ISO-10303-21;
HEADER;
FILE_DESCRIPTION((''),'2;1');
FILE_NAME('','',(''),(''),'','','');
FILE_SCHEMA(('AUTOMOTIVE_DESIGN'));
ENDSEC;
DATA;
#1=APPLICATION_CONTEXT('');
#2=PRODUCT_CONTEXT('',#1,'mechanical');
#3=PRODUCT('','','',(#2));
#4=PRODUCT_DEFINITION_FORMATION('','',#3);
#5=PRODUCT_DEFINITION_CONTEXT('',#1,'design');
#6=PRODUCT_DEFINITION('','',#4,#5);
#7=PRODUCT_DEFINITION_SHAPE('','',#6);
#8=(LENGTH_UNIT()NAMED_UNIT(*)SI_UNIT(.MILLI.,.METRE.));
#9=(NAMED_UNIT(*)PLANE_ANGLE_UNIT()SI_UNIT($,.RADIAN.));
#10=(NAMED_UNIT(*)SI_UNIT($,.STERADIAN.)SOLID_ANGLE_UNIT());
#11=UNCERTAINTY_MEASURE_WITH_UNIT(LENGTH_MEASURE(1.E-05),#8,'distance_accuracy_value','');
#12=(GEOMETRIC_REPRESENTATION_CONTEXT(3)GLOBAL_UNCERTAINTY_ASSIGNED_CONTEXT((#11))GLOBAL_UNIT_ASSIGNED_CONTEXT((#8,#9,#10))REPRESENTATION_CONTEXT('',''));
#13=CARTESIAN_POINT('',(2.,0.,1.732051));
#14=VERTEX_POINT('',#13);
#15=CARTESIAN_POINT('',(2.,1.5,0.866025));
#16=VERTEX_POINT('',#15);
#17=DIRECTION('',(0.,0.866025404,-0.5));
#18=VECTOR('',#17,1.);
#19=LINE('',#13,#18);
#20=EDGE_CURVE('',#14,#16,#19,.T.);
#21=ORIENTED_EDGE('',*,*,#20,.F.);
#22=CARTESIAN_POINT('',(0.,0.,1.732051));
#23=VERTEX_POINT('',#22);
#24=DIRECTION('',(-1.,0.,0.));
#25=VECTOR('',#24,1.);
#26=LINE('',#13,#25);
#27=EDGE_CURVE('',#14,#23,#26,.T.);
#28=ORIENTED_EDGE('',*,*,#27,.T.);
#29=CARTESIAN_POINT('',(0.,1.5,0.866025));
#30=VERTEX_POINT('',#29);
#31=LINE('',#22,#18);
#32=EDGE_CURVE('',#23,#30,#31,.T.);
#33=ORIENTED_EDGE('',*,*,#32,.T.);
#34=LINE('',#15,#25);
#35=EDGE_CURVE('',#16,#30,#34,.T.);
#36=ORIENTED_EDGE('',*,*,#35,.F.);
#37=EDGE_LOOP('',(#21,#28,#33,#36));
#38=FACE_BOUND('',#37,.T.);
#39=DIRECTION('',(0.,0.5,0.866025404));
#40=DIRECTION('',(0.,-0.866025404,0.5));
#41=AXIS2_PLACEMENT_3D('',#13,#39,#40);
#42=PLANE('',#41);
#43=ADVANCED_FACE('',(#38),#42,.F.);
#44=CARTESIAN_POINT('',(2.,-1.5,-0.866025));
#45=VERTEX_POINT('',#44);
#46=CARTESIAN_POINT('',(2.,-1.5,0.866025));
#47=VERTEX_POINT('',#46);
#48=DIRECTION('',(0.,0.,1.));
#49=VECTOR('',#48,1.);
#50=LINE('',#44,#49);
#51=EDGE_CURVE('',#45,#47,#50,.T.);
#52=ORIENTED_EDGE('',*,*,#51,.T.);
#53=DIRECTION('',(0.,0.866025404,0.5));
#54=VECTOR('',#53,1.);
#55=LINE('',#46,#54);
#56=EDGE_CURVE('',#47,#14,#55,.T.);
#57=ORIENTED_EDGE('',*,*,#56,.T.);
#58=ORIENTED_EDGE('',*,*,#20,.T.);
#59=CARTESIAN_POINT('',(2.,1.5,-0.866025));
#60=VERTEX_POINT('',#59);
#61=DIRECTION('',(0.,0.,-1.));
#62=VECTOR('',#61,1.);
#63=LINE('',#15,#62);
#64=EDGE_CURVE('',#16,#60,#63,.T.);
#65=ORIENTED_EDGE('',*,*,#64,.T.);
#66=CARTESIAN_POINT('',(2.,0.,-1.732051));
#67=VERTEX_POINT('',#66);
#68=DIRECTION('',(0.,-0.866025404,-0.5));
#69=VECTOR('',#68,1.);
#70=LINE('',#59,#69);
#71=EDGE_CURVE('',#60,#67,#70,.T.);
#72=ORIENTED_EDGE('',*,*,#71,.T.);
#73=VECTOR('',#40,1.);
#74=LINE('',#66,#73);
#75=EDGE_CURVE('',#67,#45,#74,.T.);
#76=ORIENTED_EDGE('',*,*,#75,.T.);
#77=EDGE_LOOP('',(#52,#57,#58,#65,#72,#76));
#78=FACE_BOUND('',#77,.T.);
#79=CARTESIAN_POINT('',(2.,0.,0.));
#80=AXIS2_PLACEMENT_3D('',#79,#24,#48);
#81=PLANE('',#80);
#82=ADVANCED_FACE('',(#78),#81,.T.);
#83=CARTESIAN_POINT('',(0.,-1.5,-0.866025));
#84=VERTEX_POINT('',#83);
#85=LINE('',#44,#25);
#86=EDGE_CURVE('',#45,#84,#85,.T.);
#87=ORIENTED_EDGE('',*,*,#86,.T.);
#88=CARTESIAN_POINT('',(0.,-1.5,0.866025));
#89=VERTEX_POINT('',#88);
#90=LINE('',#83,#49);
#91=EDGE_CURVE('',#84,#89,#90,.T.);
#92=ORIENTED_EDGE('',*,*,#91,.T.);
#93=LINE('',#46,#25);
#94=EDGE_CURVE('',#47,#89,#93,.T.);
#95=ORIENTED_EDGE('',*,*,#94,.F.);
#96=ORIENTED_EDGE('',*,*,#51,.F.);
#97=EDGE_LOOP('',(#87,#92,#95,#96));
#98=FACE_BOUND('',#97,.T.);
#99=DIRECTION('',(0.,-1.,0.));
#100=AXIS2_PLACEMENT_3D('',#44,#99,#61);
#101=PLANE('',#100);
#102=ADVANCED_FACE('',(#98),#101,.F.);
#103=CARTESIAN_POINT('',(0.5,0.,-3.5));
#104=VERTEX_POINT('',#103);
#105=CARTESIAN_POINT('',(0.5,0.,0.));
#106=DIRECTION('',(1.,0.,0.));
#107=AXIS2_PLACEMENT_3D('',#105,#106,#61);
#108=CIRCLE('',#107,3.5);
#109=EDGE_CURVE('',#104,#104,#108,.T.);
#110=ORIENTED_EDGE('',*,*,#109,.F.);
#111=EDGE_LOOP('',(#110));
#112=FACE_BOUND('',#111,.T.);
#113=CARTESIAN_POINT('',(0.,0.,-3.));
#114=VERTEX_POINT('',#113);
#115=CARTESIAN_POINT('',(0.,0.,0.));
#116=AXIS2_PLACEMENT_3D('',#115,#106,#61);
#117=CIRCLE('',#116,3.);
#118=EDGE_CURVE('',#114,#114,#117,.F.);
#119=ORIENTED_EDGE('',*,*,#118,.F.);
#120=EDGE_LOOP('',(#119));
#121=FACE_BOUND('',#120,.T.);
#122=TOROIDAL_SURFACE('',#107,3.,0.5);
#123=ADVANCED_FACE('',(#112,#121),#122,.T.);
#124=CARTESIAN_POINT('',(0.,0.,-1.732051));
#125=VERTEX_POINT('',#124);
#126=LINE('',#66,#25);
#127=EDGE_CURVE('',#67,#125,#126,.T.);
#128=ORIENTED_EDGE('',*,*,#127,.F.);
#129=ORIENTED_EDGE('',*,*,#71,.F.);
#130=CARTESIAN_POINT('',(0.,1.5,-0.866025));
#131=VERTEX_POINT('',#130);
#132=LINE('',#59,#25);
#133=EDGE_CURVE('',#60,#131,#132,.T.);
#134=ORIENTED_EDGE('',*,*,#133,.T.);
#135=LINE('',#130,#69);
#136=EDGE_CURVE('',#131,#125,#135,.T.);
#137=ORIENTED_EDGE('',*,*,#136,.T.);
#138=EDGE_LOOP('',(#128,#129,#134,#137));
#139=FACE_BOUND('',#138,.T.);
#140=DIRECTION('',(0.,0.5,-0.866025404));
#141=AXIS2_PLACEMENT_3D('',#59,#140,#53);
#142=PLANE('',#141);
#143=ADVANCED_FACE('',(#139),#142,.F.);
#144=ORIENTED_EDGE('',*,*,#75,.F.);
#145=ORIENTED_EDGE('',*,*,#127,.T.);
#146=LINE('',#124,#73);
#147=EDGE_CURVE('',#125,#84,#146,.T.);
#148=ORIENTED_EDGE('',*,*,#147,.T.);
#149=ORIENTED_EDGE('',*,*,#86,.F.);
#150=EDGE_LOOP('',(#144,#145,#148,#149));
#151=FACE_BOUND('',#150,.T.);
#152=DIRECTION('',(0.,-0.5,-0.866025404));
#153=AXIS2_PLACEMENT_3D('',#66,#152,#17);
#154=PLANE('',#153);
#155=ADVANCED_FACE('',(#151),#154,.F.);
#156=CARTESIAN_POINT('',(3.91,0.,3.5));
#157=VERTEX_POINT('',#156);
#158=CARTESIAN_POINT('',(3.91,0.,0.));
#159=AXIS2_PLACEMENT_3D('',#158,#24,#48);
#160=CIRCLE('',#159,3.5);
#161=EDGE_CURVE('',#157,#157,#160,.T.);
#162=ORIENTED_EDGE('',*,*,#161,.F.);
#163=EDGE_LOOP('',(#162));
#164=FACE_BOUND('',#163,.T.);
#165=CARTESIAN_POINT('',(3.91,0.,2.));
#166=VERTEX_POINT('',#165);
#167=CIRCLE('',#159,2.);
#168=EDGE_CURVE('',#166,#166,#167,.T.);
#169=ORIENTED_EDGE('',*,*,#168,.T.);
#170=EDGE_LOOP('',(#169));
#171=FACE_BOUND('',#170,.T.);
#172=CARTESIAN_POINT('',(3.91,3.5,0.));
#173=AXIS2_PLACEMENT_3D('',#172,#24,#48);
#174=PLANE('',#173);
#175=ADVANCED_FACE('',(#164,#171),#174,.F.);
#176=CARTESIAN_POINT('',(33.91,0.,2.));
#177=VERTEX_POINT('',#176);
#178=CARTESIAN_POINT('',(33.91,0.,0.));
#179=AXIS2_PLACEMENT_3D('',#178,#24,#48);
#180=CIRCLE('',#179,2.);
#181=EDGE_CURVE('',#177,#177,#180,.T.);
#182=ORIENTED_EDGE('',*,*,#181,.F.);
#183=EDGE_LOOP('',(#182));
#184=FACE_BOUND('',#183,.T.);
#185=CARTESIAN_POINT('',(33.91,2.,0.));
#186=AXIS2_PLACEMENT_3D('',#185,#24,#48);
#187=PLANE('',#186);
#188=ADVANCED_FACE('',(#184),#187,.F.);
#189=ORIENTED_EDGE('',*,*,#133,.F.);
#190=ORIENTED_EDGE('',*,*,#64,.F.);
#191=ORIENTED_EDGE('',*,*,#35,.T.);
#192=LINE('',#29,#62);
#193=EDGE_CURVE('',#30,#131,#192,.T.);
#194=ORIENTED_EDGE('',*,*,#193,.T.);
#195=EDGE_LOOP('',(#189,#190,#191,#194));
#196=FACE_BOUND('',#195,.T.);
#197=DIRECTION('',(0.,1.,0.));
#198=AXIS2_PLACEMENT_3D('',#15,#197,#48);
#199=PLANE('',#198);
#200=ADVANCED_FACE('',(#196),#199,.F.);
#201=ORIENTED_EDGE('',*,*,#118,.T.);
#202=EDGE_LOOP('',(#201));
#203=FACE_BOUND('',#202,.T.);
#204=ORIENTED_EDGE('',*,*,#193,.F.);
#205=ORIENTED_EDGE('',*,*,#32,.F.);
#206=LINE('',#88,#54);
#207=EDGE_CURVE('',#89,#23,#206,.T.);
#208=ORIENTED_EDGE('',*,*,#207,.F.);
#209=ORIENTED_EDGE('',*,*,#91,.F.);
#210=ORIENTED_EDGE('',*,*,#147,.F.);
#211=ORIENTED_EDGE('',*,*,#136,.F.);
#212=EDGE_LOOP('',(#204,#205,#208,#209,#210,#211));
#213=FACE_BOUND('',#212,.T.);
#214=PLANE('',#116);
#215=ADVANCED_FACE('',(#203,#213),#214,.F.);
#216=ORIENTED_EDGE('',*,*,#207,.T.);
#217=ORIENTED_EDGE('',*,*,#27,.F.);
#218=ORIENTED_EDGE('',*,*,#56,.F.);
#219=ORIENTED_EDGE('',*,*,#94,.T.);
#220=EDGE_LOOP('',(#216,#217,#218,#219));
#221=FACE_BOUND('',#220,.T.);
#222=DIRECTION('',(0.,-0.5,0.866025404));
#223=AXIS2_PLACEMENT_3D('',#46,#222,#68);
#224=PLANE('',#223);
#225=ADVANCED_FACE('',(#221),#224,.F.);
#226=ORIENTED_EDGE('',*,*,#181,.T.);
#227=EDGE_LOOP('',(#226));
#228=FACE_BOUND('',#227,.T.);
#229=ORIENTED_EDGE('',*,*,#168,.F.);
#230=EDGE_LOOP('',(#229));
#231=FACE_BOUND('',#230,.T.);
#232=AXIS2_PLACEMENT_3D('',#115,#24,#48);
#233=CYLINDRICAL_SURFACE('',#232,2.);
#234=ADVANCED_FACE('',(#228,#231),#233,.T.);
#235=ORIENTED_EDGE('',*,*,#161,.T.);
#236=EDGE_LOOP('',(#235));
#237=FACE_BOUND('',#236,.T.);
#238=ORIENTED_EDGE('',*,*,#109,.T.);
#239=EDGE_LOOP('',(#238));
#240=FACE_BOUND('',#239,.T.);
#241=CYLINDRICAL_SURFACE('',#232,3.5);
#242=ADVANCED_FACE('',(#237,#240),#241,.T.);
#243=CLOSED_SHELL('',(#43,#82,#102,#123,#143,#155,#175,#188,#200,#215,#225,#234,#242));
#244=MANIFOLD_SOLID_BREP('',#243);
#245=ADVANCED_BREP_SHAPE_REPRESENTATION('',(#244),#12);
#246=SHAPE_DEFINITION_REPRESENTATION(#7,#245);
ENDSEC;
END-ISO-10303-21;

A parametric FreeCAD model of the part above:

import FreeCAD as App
import Part
import Sketcher
Q = App.Units.Quantity


def edges_at(feature, points):
    """Names of the edges that pass closest to the given points."""
    edges = feature.Shape.Edges
    near = lambda p: min(range(len(edges)), key=lambda i: edges[i].distToShape(Part.Vertex(*p))[0])
    return sorted({f"Edge{near(p) + 1}" for p in points})

doc = App.newDocument("Part")
body = doc.addObject("PartDesign::Body", "Body")

# Sketch on XY plane
sketch1 = doc.addObject("Sketcher::SketchObject", "Sketch")
body.addObject(sketch1)
sketch1.AttachmentSupport = (doc.XY_Plane, [""])
sketch1.MapMode = "FlatFace"
sketch1.addGeometry([
    Part.LineSegment(App.Vector(0, 3.5, 0), App.Vector(0, 0, 0)),  # 0
    Part.LineSegment(App.Vector(0, 0, 0), App.Vector(33.91, 0, 0)),  # 1
    Part.LineSegment(App.Vector(33.91, 0, 0), App.Vector(33.91, 2, 0)),  # 2
    Part.LineSegment(App.Vector(33.91, 2, 0), App.Vector(3.91, 2, 0)),  # 3
    Part.LineSegment(App.Vector(3.91, 2, 0), App.Vector(3.91, 3.5, 0)),  # 4
    Part.LineSegment(App.Vector(3.91, 3.5, 0), App.Vector(0, 3.5, 0)),  # 5
], False)
sketch1.addConstraint([
    Sketcher.Constraint("Coincident", 0, 2, 1, 1),
    Sketcher.Constraint("Coincident", 1, 2, 2, 1),
    Sketcher.Constraint("Coincident", 2, 2, 3, 1),
    Sketcher.Constraint("Coincident", 3, 2, 4, 1),
    Sketcher.Constraint("Coincident", 4, 2, 5, 1),
    Sketcher.Constraint("Coincident", 5, 2, 0, 1),
    Sketcher.Constraint("Vertical", 0),
    Sketcher.Constraint("Horizontal", 1),
    Sketcher.Constraint("Vertical", 2),
    Sketcher.Constraint("Horizontal", 3),
    Sketcher.Constraint("Vertical", 4),
    Sketcher.Constraint("Horizontal", 5),
    Sketcher.Constraint("Coincident", 0, 2, -1, 1),
    Sketcher.Constraint("DistanceX", 3, 2, 3, 1, Q("30 mm")),
    Sketcher.Constraint("DistanceY", 2, 1, 2, 2, Q("2 mm")),
    Sketcher.Constraint("DistanceY", 0, 2, 0, 1, Q("3.5 mm")),
    Sketcher.Constraint("DistanceX", 1, 1, 1, 2, Q("33.91 mm")),
])
revolution = doc.addObject("PartDesign::Revolution", "Revolution")
body.addObject(revolution)
revolution.Profile = sketch1
revolution.ReferenceAxis = (sketch1, ["H_Axis"])
revolution.Angle = 360

# Sketch on YZ plane
sketch2 = doc.addObject("Sketcher::SketchObject", "Sketch001")
body.addObject(sketch2)
sketch2.AttachmentSupport = (doc.YZ_Plane, [""])
sketch2.MapMode = "FlatFace"
sketch2.addGeometry([
    Part.LineSegment(App.Vector(0, -1.732051, 0), App.Vector(-1.5, -0.866025, 0)),  # 0
    Part.LineSegment(App.Vector(-1.5, -0.866025, 0), App.Vector(-1.5, 0.866025, 0)),  # 1
    Part.LineSegment(App.Vector(-1.5, 0.866025, 0), App.Vector(0, 1.732051, 0)),  # 2
    Part.LineSegment(App.Vector(0, 1.732051, 0), App.Vector(1.5, 0.866025, 0)),  # 3
    Part.LineSegment(App.Vector(1.5, 0.866025, 0), App.Vector(1.5, -0.866025, 0)),  # 4
    Part.LineSegment(App.Vector(1.5, -0.866025, 0), App.Vector(0, -1.732051, 0)),  # 5
], False)
sketch2.addConstraint([
    Sketcher.Constraint("Coincident", 0, 2, 1, 1),
    Sketcher.Constraint("Coincident", 1, 2, 2, 1),
    Sketcher.Constraint("Coincident", 2, 2, 3, 1),
    Sketcher.Constraint("Coincident", 3, 2, 4, 1),
    Sketcher.Constraint("Coincident", 4, 2, 5, 1),
    Sketcher.Constraint("Coincident", 5, 2, 0, 1),
    Sketcher.Constraint("Vertical", 1),
    Sketcher.Constraint("Vertical", 4),
    Sketcher.Constraint("Symmetric", 0, 2, 3, 2, -1, 1),
    Sketcher.Constraint("Symmetric", 2, 2, 5, 2, -1, 1),
    Sketcher.Constraint("PointOnObject", 2, 2, -2),
    Sketcher.Constraint("Parallel", 2, 5),
    Sketcher.Constraint("Horizontal", 1, 2, 3, 2),
    Sketcher.Constraint("Angle", 0, Q("150 deg")),
    Sketcher.Constraint("DistanceX", 1, 2, 3, 2, Q("3 mm")),
    Sketcher.Constraint("DistanceY", 1, 1, 1, 2, Q("1.732051 mm")),
])
pocket1 = doc.addObject("PartDesign::Pocket", "Pocket")
body.addObject(pocket1)
pocket1.Profile = sketch2
pocket1.Length = 2
pocket1.Reversed = True
doc.recompute()

fillet = doc.addObject("PartDesign::Fillet", "Fillet")
body.addObject(fillet)
fillet.Base = (pocket1, edges_at(pocket1, [(0, -3.5, 0)]))
fillet.Radius = 0.5

doc.recompute()
